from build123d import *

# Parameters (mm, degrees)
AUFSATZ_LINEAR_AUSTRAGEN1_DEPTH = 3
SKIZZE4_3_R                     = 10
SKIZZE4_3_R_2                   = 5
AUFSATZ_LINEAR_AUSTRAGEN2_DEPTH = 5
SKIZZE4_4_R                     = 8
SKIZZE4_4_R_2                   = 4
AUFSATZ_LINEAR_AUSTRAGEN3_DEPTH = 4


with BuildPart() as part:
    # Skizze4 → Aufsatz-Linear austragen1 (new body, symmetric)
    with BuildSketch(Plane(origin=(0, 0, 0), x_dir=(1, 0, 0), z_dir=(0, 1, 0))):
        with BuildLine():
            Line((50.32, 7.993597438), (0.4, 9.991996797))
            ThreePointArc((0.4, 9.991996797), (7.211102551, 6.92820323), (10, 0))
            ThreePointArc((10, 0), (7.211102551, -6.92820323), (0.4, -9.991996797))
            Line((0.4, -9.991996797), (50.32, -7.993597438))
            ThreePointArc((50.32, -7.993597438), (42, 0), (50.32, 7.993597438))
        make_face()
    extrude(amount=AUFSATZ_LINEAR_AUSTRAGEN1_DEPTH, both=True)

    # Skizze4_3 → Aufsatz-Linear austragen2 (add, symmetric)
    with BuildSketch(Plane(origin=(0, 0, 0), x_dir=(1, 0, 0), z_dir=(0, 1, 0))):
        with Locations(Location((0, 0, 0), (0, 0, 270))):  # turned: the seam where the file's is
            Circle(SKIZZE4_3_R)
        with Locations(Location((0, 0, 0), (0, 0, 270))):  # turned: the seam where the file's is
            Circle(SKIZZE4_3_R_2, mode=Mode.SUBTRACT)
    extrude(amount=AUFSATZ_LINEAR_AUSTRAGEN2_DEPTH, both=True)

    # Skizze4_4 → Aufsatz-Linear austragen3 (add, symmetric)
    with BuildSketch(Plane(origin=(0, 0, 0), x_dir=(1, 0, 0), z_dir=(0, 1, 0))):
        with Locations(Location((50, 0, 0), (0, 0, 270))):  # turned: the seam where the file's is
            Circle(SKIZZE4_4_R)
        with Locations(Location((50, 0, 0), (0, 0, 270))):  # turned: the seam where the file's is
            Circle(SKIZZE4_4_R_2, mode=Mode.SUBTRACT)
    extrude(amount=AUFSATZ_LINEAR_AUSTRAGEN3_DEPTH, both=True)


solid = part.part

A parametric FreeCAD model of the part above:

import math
import FreeCAD as App
import Part
import Sketcher
from FreeCAD import Vector

doc = App.newDocument("Part")
params = doc.addObject("Spreadsheet::Sheet", "Params")
for row, (alias, value) in enumerate([
    ("sketch1_radius", "10 mm"),
    ("sketch1_radius2", "8 mm"),
    ("pad1_length", "6 mm"),
    ("sketch2_diameter", "20 mm"),
    ("sketch2_diameter2", "10 mm"),
    ("pad2_length", "10 mm"),
    ("sketch3_diameter", "16 mm"),
    ("sketch3_diameter2", "8 mm"),
    ("pad3_length", "8 mm"),
], start=1):
    params.set(f"A{row}", alias)
    params.set(f"B{row}", "=" + value)
    params.setAlias(f"B{row}", alias)

body = doc.addObject("PartDesign::Body", "Body")

# Sketch on XZ plane
sketch1 = body.newObject("Sketcher::SketchObject", "Sketch")
sketch1.AttachmentSupport = (doc.getObject("XZ_Plane"), [""])
sketch1.MapMode = "FlatFace"
sketch1.addGeometry(Part.LineSegment(Vector(50, -8, 0), Vector(0, -10, 0)), False)
sketch1.addGeometry(Part.ArcOfCircle(Part.Circle(Vector(0, 0, 0), Vector(0, 0, 1), 10), math.radians(-88), math.radians(0)), False)
sketch1.addGeometry(Part.ArcOfCircle(Part.Circle(Vector(0, 0, 0), Vector(0, 0, 1), 10), math.radians(0), math.radians(88)), False)
sketch1.addGeometry(Part.LineSegment(Vector(0, 10, 0), Vector(50, 8, 0)), False)
sketch1.addGeometry(Part.ArcOfCircle(Part.Circle(Vector(50, 0, 0), Vector(0, 0, 1), 8), math.radians(88), math.radians(272)), False)
sketch1.addConstraint(Sketcher.Constraint("Tangent", 0, 2, 1, 1))
sketch1.addConstraint(Sketcher.Constraint("Tangent", 1, 2, 2, 1))
sketch1.addConstraint(Sketcher.Constraint("Tangent", 2, 2, 3, 1))
sketch1.addConstraint(Sketcher.Constraint("Tangent", 3, 2, 4, 1))
sketch1.addConstraint(Sketcher.Constraint("Tangent", 4, 2, 0, 1))
sketch1.addConstraint(Sketcher.Constraint("Coincident", 1, 3, -1, 1))
sketch1.addConstraint(Sketcher.Constraint("Equal", 1, 2))
sketch1.addConstraint(Sketcher.Constraint("PointOnObject", 4, 3, -1))
sketch1.addConstraint(Sketcher.Constraint("PointOnObject", 1, 2, -1))
sketch1.addConstraint(Sketcher.Constraint("Radius", 1, 10.0))
sketch1.addConstraint(Sketcher.Constraint("Radius", 4, 8.0))
sketch1.addConstraint(Sketcher.Constraint("DistanceX", -1, 1, 4, 3, 50.0))
sketch1.setExpression("Constraints[9]", "Params.sketch1_radius")
sketch1.setExpression("Constraints[10]", "Params.sketch1_radius2")
pad1 = body.newObject("PartDesign::Pad", "Pad")
pad1.Profile = sketch1
pad1.setExpression("Length", "Params.pad1_length")
pad1.Midplane = True

# Sketch on XZ plane
sketch2 = body.newObject("Sketcher::SketchObject", "Sketch001")
sketch2.AttachmentSupport = (doc.getObject("XZ_Plane"), [""])
sketch2.MapMode = "FlatFace"
sketch2.addGeometry(Part.Circle(Vector(0, 0, 0), Vector(0, 0, 1), 10), False)
sketch2.addGeometry(Part.Circle(Vector(0, 0, 0), Vector(0, 0, 1), 5), False)
sketch2.addConstraint(Sketcher.Constraint("Coincident", 0, 3, -1, 1))
sketch2.addConstraint(Sketcher.Constraint("Coincident", 1, 3, -1, 1))
sketch2.addConstraint(Sketcher.Constraint("Diameter", 0, 20.0))
sketch2.addConstraint(Sketcher.Constraint("Diameter", 1, 10.0))
sketch2.setExpression("Constraints[2]", "Params.sketch2_diameter")
sketch2.setExpression("Constraints[3]", "Params.sketch2_diameter2")
pad2 = body.newObject("PartDesign::Pad", "Pad001")
pad2.Profile = sketch2
pad2.setExpression("Length", "Params.pad2_length")
pad2.Midplane = True

# Sketch on XZ plane
sketch3 = body.newObject("Sketcher::SketchObject", "Sketch002")
sketch3.AttachmentSupport = (doc.getObject("XZ_Plane"), [""])
sketch3.MapMode = "FlatFace"
sketch3.addGeometry(Part.Circle(Vector(50, 0, 0), Vector(0, 0, 1), 8), False)
sketch3.addGeometry(Part.Circle(Vector(50, 0, 0), Vector(0, 0, 1), 4), False)
sketch3.addConstraint(Sketcher.Constraint("Coincident", 1, 3, 0, 3))
sketch3.addConstraint(Sketcher.Constraint("PointOnObject", 0, 3, -1))
sketch3.addConstraint(Sketcher.Constraint("Diameter", 0, 16.0))
sketch3.addConstraint(Sketcher.Constraint("Diameter", 1, 8.0))
sketch3.addConstraint(Sketcher.Constraint("DistanceX", -1, 1, 0, 3, 50.0))
sketch3.setExpression("Constraints[2]", "Params.sketch3_diameter")
sketch3.setExpression("Constraints[3]", "Params.sketch3_diameter2")
pad3 = body.newObject("PartDesign::Pad", "Pad002")
pad3.Profile = sketch3
pad3.setExpression("Length", "Params.pad3_length")
pad3.Midplane = True

doc.recompute()
